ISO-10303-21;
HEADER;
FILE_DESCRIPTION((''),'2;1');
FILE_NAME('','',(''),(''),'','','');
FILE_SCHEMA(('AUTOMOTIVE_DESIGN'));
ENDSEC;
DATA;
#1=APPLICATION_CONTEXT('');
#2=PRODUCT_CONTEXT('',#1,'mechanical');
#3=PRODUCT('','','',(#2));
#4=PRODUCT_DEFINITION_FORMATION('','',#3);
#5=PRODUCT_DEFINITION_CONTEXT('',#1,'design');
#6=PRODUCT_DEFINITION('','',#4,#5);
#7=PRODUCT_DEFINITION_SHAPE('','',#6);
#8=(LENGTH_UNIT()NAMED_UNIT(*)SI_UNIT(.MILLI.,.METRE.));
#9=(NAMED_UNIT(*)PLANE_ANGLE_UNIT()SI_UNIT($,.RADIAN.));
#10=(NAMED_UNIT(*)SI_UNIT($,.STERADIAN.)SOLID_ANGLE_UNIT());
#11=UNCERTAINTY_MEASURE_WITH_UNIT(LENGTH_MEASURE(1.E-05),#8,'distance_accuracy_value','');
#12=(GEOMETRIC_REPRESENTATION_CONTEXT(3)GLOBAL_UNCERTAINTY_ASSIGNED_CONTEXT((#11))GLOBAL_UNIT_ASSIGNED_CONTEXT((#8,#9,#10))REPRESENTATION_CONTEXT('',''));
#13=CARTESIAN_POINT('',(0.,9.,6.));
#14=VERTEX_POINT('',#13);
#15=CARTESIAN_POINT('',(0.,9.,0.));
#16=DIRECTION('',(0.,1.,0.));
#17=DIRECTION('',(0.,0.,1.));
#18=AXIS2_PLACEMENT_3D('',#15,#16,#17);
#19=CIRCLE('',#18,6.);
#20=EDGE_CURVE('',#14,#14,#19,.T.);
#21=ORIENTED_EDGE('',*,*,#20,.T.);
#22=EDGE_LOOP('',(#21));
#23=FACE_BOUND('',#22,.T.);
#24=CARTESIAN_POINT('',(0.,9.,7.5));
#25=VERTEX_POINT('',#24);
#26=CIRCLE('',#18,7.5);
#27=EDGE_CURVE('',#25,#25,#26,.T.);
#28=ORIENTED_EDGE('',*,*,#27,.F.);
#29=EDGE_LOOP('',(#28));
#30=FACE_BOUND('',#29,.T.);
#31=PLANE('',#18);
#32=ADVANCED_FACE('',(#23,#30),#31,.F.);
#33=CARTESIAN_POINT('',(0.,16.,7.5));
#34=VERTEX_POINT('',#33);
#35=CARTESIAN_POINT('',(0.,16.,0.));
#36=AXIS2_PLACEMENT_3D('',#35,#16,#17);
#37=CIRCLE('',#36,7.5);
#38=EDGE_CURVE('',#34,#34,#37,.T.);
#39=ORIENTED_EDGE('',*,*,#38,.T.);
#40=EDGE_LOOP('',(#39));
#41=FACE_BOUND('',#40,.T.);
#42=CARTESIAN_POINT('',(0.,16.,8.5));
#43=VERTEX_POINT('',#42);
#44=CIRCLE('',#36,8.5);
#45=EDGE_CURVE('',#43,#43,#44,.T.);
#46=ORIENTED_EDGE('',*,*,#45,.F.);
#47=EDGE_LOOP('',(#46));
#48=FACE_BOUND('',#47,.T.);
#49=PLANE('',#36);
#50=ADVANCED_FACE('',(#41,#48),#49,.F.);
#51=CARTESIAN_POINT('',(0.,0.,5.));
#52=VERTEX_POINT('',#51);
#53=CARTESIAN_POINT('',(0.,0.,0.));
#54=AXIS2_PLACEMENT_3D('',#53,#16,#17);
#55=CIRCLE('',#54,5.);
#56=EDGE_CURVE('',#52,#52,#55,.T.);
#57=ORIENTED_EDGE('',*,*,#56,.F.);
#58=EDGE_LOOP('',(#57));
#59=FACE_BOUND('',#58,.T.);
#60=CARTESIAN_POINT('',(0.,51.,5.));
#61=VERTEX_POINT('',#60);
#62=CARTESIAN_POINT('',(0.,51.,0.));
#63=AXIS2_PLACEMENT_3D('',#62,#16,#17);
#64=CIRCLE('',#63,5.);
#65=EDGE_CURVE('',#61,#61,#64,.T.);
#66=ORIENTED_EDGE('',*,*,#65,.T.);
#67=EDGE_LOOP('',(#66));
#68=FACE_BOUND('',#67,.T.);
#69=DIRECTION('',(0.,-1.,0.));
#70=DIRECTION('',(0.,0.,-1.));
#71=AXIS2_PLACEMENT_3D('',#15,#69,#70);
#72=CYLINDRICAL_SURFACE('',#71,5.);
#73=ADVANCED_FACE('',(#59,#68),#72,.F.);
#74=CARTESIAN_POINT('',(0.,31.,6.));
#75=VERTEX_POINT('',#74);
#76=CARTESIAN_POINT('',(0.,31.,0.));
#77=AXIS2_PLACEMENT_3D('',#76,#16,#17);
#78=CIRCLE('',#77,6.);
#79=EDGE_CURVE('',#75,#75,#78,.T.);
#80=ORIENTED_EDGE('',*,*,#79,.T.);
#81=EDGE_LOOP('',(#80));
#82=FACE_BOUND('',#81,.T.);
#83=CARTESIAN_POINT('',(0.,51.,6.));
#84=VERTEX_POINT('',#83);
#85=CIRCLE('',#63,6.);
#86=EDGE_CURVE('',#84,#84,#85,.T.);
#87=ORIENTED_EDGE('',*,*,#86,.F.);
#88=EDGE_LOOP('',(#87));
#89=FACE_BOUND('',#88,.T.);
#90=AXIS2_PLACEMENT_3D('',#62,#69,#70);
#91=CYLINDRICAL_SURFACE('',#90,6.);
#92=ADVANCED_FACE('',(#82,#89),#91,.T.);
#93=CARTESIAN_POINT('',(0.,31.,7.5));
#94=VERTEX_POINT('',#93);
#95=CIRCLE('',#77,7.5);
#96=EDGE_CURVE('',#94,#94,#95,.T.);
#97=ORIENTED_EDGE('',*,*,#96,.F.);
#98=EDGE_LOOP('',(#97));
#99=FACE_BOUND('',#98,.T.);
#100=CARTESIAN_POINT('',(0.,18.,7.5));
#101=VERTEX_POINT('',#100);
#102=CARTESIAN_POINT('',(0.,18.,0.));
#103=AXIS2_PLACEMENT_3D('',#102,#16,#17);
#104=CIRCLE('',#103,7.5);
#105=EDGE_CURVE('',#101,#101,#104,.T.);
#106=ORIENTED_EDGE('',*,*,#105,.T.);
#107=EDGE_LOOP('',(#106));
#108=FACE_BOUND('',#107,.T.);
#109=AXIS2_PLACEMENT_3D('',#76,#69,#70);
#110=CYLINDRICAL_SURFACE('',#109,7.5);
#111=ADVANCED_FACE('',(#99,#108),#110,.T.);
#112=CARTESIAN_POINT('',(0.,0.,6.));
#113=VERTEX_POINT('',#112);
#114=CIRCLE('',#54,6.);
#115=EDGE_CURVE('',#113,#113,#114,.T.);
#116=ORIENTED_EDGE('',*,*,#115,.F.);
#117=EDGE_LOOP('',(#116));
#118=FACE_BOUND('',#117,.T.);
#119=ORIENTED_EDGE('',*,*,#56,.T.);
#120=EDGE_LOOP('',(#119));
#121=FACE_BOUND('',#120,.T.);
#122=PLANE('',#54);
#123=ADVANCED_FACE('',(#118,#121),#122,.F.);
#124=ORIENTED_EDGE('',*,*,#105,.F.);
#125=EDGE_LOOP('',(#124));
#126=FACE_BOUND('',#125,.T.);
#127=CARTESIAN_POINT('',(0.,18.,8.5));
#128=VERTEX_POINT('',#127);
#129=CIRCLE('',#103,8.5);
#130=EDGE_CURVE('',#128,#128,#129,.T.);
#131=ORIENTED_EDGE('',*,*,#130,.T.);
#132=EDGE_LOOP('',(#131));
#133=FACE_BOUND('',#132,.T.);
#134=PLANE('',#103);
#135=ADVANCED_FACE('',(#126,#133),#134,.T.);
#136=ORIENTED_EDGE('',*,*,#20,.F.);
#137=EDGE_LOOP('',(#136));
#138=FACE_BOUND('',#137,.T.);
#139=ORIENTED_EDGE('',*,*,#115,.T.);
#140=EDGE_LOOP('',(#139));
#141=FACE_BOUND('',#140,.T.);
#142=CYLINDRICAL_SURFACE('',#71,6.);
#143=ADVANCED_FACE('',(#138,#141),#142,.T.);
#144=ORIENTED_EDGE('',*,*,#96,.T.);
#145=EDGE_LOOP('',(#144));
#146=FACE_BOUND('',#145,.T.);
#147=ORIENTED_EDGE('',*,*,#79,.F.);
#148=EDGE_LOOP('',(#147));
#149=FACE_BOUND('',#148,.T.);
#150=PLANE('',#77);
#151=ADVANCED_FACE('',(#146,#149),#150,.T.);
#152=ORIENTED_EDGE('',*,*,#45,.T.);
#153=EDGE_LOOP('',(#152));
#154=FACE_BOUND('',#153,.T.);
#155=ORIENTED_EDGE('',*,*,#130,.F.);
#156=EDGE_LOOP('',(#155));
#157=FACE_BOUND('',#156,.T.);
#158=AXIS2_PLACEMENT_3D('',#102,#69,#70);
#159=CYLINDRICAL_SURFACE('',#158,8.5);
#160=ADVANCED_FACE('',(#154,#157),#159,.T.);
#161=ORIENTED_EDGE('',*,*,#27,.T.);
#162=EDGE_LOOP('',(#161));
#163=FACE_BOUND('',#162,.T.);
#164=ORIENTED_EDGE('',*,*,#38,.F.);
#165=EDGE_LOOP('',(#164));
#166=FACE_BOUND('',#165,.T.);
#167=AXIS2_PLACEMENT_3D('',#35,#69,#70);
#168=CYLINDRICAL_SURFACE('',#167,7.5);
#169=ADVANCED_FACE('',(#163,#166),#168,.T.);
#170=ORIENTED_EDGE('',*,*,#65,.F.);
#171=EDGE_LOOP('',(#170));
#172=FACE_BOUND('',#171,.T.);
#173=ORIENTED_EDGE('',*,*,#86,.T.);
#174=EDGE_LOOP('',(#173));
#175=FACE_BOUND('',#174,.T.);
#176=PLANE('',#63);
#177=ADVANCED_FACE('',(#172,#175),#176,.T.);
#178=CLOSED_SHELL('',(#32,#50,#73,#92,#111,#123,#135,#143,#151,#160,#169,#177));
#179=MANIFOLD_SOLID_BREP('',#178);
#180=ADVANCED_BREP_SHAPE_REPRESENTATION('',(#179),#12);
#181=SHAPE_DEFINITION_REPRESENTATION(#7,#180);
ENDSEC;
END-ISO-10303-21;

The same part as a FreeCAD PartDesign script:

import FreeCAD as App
import Part
import Sketcher
from FreeCAD import Vector
Q = App.Units.Quantity

doc = App.newDocument("Part")
body = doc.addObject("PartDesign::Body", "Body")

# Sketch on XZ plane
sketch1 = body.newObject("Sketcher::SketchObject", "Sketch")
sketch1.AttachmentSupport = (doc.getObject("XZ_Plane"), [""])
sketch1.MapMode = "FlatFace"
sketch1.addGeometry(Part.Circle(Vector(0, 0, 0), Vector(0, 0, 1), 6), False)
sketch1.addGeometry(Part.Circle(Vector(0, 0, 0), Vector(0, 0, 1), 5), False)
sketch1.addConstraint(Sketcher.Constraint("Coincident", 0, 3, -1, 1))
sketch1.addConstraint(Sketcher.Constraint("Coincident", 1, 3, -1, 1))
sketch1.addConstraint(Sketcher.Constraint("Diameter", 0, Q("12 mm")))
sketch1.addConstraint(Sketcher.Constraint("Diameter", 1, Q("10 mm")))
pad1 = body.newObject("PartDesign::Pad", "Pad")
pad1.Profile = sketch1
pad1.Length = 9
pad1.Reversed = True

# Sketch on XZ plane
sketch2 = body.newObject("Sketcher::SketchObject", "Sketch001")
sketch2.AttachmentSupport = (doc.getObject("XZ_Plane"), [""])
sketch2.MapMode = "FlatFace"
sketch2.AttachmentOffset = App.Placement(Vector(0, 0, -9), App.Rotation())
sketch2.addGeometry(Part.Circle(Vector(0, 0, 0), Vector(0, 0, 1), 8), False)
sketch2.addGeometry(Part.Circle(Vector(0, 0, 0), Vector(0, 0, 1), 5), False)
sketch2.addConstraint(Sketcher.Constraint("Coincident", 0, 3, -1, 1))
sketch2.addConstraint(Sketcher.Constraint("Coincident", 1, 3, -1, 1))
sketch2.addConstraint(Sketcher.Constraint("Diameter", 0, Q("15 mm")))
sketch2.addConstraint(Sketcher.Constraint("Diameter", 1, Q("10 mm")))
pad2 = body.newObject("PartDesign::Pad", "Pad001")
pad2.Profile = sketch2
pad2.Length = 7
pad2.Reversed = True

# Sketch on XZ plane
sketch3 = body.newObject("Sketcher::SketchObject", "Sketch002")
sketch3.AttachmentSupport = (doc.getObject("XZ_Plane"), [""])
sketch3.MapMode = "FlatFace"
sketch3.AttachmentOffset = App.Placement(Vector(0, 0, -16), App.Rotation())
sketch3.addGeometry(Part.Circle(Vector(0, 0, 0), Vector(0, 0, 1), 8), False)
sketch3.addGeometry(Part.Circle(Vector(0, 0, 0), Vector(0, 0, 1), 5), False)
sketch3.addConstraint(Sketcher.Constraint("Coincident", 0, 3, -1, 1))
sketch3.addConstraint(Sketcher.Constraint("Coincident", 1, 3, -1, 1))
sketch3.addConstraint(Sketcher.Constraint("Diameter", 0, Q("17 mm")))
sketch3.addConstraint(Sketcher.Constraint("Diameter", 1, Q("10 mm")))
pad3 = body.newObject("PartDesign::Pad", "Pad002")
pad3.Profile = sketch3
pad3.Length = 2
pad3.Reversed = True

# Sketch on XZ plane
sketch4 = body.newObject("Sketcher::SketchObject", "Sketch003")
sketch4.AttachmentSupport = (doc.getObject("XZ_Plane"), [""])
sketch4.MapMode = "FlatFace"
sketch4.AttachmentOffset = App.Placement(Vector(0, 0, -18), App.Rotation())
sketch4.addGeometry(Part.Circle(Vector(0, 0, 0), Vector(0, 0, 1), 8), False)
sketch4.addGeometry(Part.Circle(Vector(0, 0, 0), Vector(0, 0, 1), 5), False)
sketch4.addConstraint(Sketcher.Constraint("Coincident", 0, 3, -1, 1))
sketch4.addConstraint(Sketcher.Constraint("Coincident", 1, 3, -1, 1))
sketch4.addConstraint(Sketcher.Constraint("Diameter", 0, Q("15 mm")))
sketch4.addConstraint(Sketcher.Constraint("Diameter", 1, Q("10 mm")))
pad4 = body.newObject("PartDesign::Pad", "Pad003")
pad4.Profile = sketch4
pad4.Length = 13
pad4.Reversed = True

# Sketch on XZ plane
sketch5 = body.newObject("Sketcher::SketchObject", "Sketch004")
sketch5.AttachmentSupport = (doc.getObject("XZ_Plane"), [""])
sketch5.MapMode = "FlatFace"
sketch5.AttachmentOffset = App.Placement(Vector(0, 0, -31), App.Rotation())
sketch5.addGeometry(Part.Circle(Vector(0, 0, 0), Vector(0, 0, 1), 6), False)
sketch5.addGeometry(Part.Circle(Vector(0, 0, 0), Vector(0, 0, 1), 5), False)
sketch5.addConstraint(Sketcher.Constraint("Coincident", 0, 3, -1, 1))
sketch5.addConstraint(Sketcher.Constraint("Coincident", 1, 3, -1, 1))
sketch5.addConstraint(Sketcher.Constraint("Diameter", 0, Q("12 mm")))
sketch5.addConstraint(Sketcher.Constraint("Diameter", 1, Q("10 mm")))
pad5 = body.newObject("PartDesign::Pad", "Pad004")
pad5.Profile = sketch5
pad5.Length = 20
pad5.Reversed = True

doc.recompute()
